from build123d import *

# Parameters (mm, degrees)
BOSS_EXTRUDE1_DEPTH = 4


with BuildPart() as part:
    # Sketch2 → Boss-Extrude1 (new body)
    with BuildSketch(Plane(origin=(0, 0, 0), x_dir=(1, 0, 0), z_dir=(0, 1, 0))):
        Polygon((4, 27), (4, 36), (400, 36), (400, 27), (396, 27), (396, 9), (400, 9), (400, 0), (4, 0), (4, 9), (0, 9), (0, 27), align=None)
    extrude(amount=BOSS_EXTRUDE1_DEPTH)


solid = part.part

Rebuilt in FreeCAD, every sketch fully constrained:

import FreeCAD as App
import Part
import Sketcher
Q = App.Units.Quantity

doc = App.newDocument("Part")
body = doc.addObject("PartDesign::Body", "Body")

# Sketch on XZ plane
sketch1 = body.newObject("Sketcher::SketchObject", "Sketch")
sketch1.AttachmentSupport = (doc.getObject("XZ_Plane"), [""])
sketch1.MapMode = "FlatFace"
sketch1.addGeometry(Part.LineSegment(App.Vector(4, -36, 0), App.Vector(4, -27, 0)), False)
sketch1.addGeometry(Part.LineSegment(App.Vector(4, -27, 0), App.Vector(0, -27, 0)), False)
sketch1.addGeometry(Part.LineSegment(App.Vector(0, -27, 0), App.Vector(0, -9, 0)), False)
sketch1.addGeometry(Part.LineSegment(App.Vector(0, -9, 0), App.Vector(4, -9, 0)), False)
sketch1.addGeometry(Part.LineSegment(App.Vector(4, -9, 0), App.Vector(4, 0, 0)), False)
sketch1.addGeometry(Part.LineSegment(App.Vector(4, 0, 0), App.Vector(400, 0, 0)), False)
sketch1.addGeometry(Part.LineSegment(App.Vector(400, 0, 0), App.Vector(400, -9, 0)), False)
sketch1.addGeometry(Part.LineSegment(App.Vector(400, -9, 0), App.Vector(396, -9, 0)), False)
sketch1.addGeometry(Part.LineSegment(App.Vector(396, -9, 0), App.Vector(396, -27, 0)), False)
sketch1.addGeometry(Part.LineSegment(App.Vector(396, -27, 0), App.Vector(400, -27, 0)), False)
sketch1.addGeometry(Part.LineSegment(App.Vector(400, -27, 0), App.Vector(400, -36, 0)), False)
sketch1.addGeometry(Part.LineSegment(App.Vector(400, -36, 0), App.Vector(4, -36, 0)), False)
sketch1.addConstraint(Sketcher.Constraint("Coincident", 0, 2, 1, 1))
sketch1.addConstraint(Sketcher.Constraint("Coincident", 1, 2, 2, 1))
sketch1.addConstraint(Sketcher.Constraint("Coincident", 2, 2, 3, 1))
sketch1.addConstraint(Sketcher.Constraint("Coincident", 3, 2, 4, 1))
sketch1.addConstraint(Sketcher.Constraint("Coincident", 4, 2, 5, 1))
sketch1.addConstraint(Sketcher.Constraint("Coincident", 5, 2, 6, 1))
sketch1.addConstraint(Sketcher.Constraint("Coincident", 6, 2, 7, 1))
sketch1.addConstraint(Sketcher.Constraint("Coincident", 7, 2, 8, 1))
sketch1.addConstraint(Sketcher.Constraint("Coincident", 8, 2, 9, 1))
sketch1.addConstraint(Sketcher.Constraint("Coincident", 9, 2, 10, 1))
sketch1.addConstraint(Sketcher.Constraint("Coincident", 10, 2, 11, 1))
sketch1.addConstraint(Sketcher.Constraint("Coincident", 11, 2, 0, 1))
sketch1.addConstraint(Sketcher.Constraint("Vertical", 0))
sketch1.addConstraint(Sketcher.Constraint("Horizontal", 1))
sketch1.addConstraint(Sketcher.Constraint("Vertical", 2))
sketch1.addConstraint(Sketcher.Constraint("Horizontal", 3))
sketch1.addConstraint(Sketcher.Constraint("Vertical", 4))
sketch1.addConstraint(Sketcher.Constraint("Horizontal", 5))
sketch1.addConstraint(Sketcher.Constraint("Vertical", 6))
sketch1.addConstraint(Sketcher.Constraint("Horizontal", 7))
sketch1.addConstraint(Sketcher.Constraint("Vertical", 8))
sketch1.addConstraint(Sketcher.Constraint("Horizontal", 9))
sketch1.addConstraint(Sketcher.Constraint("Vertical", 10))
sketch1.addConstraint(Sketcher.Constraint("Horizontal", 11))
sketch1.addConstraint(Sketcher.Constraint("PointOnObject", 1, 2, -2))
sketch1.addConstraint(Sketcher.Constraint("PointOnObject", 4, 2, -1))
sketch1.addConstraint(Sketcher.Constraint("Horizontal", 3, 2, 6, 2))
sketch1.addConstraint(Sketcher.Constraint("Horizontal", 1, 2, 8, 2))
sketch1.addConstraint(Sketcher.Constraint("Vertical", 0, 2, 3, 2))
sketch1.addConstraint(Sketcher.Constraint("Vertical", 6, 2, 9, 2))
sketch1.addConstraint(Sketcher.Constraint("Equal", 3, 7))
sketch1.addConstraint(Sketcher.Constraint("Equal", 0, 4))
sketch1.addConstraint(Sketcher.Constraint("DistanceX", 1, 2, 1, 1, Q("4 mm")))
sketch1.addConstraint(Sketcher.Constraint("DistanceX", 5, 1, 5, 2, Q("396 mm")))
sketch1.addConstraint(Sketcher.Constraint("DistanceY", 0, 1, 0, 2, Q("9 mm")))
sketch1.addConstraint(Sketcher.Constraint("DistanceY", 2, 1, 2, 2, Q("18 mm")))
pad1 = body.newObject("PartDesign::Pad", "Pad")
pad1.Profile = sketch1
pad1.Length = 4
pad1.Reversed = True

doc.recompute()
